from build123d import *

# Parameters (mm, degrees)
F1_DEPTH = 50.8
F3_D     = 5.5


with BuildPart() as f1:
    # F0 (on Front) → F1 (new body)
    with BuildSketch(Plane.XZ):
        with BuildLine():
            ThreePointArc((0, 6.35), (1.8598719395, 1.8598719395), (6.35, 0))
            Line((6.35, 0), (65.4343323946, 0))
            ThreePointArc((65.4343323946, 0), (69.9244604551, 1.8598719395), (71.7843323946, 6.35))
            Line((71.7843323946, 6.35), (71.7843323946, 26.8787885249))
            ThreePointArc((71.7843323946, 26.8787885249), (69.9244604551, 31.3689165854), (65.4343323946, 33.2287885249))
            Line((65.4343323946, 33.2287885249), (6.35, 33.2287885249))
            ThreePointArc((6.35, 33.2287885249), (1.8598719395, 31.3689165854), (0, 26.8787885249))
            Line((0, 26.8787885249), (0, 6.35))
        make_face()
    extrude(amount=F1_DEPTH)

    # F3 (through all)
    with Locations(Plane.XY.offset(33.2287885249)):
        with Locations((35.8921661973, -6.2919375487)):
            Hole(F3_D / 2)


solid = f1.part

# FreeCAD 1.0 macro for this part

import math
import FreeCAD as App
import Part
import Sketcher
from FreeCAD import Vector
Q = App.Units.Quantity

doc = App.newDocument("Part")
body = doc.addObject("PartDesign::Body", "Body")

# Sketch on XZ plane
sketch1 = doc.addObject("Sketcher::SketchObject", "Sketch")
body.addObject(sketch1)
sketch1.AttachmentSupport = (doc.XZ_Plane, [""])
sketch1.MapMode = "FlatFace"
sketch1.addGeometry(Part.ArcOfCircle(Part.Circle(Vector(6.35, 6.35, 0), Vector(0, 0, 1), 6.35), math.radians(180), math.radians(270)), False)
sketch1.addGeometry(Part.LineSegment(Vector(6.35, 0, 0), Vector(65.434332, 0, 0)), False)
sketch1.addGeometry(Part.ArcOfCircle(Part.Circle(Vector(65.434332, 6.35, 0), Vector(0, 0, 1), 6.35), math.radians(-90), math.radians(0)), False)
sketch1.addGeometry(Part.LineSegment(Vector(71.784332, 6.35, 0), Vector(71.784332, 26.878789, 0)), False)
sketch1.addGeometry(Part.ArcOfCircle(Part.Circle(Vector(65.434332, 26.878789, 0), Vector(0, 0, 1), 6.35), math.radians(0), math.radians(90)), False)
sketch1.addGeometry(Part.LineSegment(Vector(65.434332, 33.228789, 0), Vector(6.35, 33.228789, 0)), False)
sketch1.addGeometry(Part.ArcOfCircle(Part.Circle(Vector(6.35, 26.878789, 0), Vector(0, 0, 1), 6.35), math.radians(90), math.radians(180)), False)
sketch1.addGeometry(Part.LineSegment(Vector(0, 26.878789, 0), Vector(0, 6.35, 0)), False)
sketch1.addConstraint(Sketcher.Constraint("Tangent", 0, 2, 1, 1))
sketch1.addConstraint(Sketcher.Constraint("Tangent", 1, 2, 2, 1))
sketch1.addConstraint(Sketcher.Constraint("Tangent", 2, 2, 3, 1))
sketch1.addConstraint(Sketcher.Constraint("Tangent", 3, 2, 4, 1))
sketch1.addConstraint(Sketcher.Constraint("Tangent", 4, 2, 5, 1))
sketch1.addConstraint(Sketcher.Constraint("Tangent", 5, 2, 6, 1))
sketch1.addConstraint(Sketcher.Constraint("Tangent", 6, 2, 7, 1))
sketch1.addConstraint(Sketcher.Constraint("Tangent", 7, 2, 0, 1))
sketch1.addConstraint(Sketcher.Constraint("Horizontal", 1))
sketch1.addConstraint(Sketcher.Constraint("Vertical", 3))
sketch1.addConstraint(Sketcher.Constraint("Horizontal", 5))
sketch1.addConstraint(Sketcher.Constraint("Vertical", 7))
sketch1.addConstraint(Sketcher.Constraint("Equal", 0, 2))
sketch1.addConstraint(Sketcher.Constraint("Equal", 2, 4))
sketch1.addConstraint(Sketcher.Constraint("Equal", 4, 6))
sketch1.addConstraint(Sketcher.Constraint("PointOnObject", 0, 2, -1))
sketch1.addConstraint(Sketcher.Constraint("PointOnObject", 6, 2, -2))
sketch1.addConstraint(Sketcher.Constraint("Radius", 0, Q("0.25 in")))
sketch1.addConstraint(Sketcher.Constraint("DistanceY", 3, 1, 3, 2, 20.528789))
sketch1.addConstraint(Sketcher.Constraint("DistanceX", 1, 1, 1, 2, 59.084332))
pad1 = doc.addObject("PartDesign::Pad", "Pad")
body.addObject(pad1)
pad1.Profile = sketch1
pad1.Length = Q("2 in")

# Sketch on XY plane
sketch2 = doc.addObject("Sketcher::SketchObject", "Sketch001")
body.addObject(sketch2)
sketch2.AttachmentSupport = (doc.XY_Plane, [""])
sketch2.MapMode = "FlatFace"
sketch2.AttachmentOffset = App.Placement(Vector(0, 0, 33.228789), App.Rotation())
sketch2.addGeometry(Part.Circle(Vector(35.892166, -6.291938, 0), Vector(0, 0, 1), 2.75), False)
sketch2.addConstraint(Sketcher.Constraint("Diameter", 0, 5.5))
sketch2.addConstraint(Sketcher.Constraint("DistanceX", -1, 1, 0, 3, 35.892166))
sketch2.addConstraint(Sketcher.Constraint("DistanceY", 0, 3, -1, 1, 6.291938))
doc.recompute()
hole = doc.addObject("PartDesign::Hole", "Hole")
body.addObject(hole)
hole.Profile = sketch2
hole.ThreadType = "None"
hole.Diameter = 5.5
hole.DepthType = "ThroughAll"

doc.recompute()
